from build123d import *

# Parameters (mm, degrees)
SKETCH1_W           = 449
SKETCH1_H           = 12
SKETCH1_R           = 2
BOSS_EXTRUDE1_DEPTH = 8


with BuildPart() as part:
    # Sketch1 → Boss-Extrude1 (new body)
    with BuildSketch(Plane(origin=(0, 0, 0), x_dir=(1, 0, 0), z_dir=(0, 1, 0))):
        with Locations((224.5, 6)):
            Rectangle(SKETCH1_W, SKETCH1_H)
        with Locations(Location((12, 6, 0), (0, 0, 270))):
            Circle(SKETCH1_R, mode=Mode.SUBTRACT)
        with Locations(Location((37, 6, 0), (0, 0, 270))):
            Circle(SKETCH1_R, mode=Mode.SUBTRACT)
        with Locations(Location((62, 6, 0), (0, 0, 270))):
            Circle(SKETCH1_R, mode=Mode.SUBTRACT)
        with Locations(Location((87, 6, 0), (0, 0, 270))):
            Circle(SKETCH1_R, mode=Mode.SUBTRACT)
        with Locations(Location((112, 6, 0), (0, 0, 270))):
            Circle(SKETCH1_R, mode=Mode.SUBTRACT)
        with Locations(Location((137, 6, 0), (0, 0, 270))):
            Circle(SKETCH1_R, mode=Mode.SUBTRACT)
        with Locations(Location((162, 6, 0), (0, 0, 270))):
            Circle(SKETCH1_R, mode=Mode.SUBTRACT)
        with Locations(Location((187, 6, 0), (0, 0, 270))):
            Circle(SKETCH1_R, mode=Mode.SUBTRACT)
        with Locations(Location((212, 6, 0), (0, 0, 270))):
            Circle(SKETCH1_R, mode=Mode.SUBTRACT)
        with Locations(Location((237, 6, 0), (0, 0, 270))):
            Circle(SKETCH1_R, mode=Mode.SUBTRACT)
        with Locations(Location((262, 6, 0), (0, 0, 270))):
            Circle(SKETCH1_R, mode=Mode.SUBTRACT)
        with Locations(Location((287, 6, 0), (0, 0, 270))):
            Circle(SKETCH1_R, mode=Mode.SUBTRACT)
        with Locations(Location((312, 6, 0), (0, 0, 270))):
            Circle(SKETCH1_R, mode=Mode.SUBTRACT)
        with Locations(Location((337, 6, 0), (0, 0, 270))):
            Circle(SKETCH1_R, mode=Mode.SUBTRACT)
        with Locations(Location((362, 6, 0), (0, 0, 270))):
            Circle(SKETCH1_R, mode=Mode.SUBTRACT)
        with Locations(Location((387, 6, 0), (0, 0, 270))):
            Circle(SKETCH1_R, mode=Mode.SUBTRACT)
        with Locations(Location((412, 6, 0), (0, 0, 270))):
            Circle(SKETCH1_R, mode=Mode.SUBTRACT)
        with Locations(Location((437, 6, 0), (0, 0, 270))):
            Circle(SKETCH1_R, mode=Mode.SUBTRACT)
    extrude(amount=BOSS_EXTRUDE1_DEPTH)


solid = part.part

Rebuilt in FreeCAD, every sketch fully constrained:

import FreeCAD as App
import Part
import Sketcher


def add_polygon(sketch, points):
    """Adds a closed chain of lines whose ends are joined by coincident constraints."""
    first, n = sketch.GeometryCount, len(points)
    for a, b in zip(points, points[1:] + points[:1]):
        sketch.addGeometry(Part.LineSegment(App.Vector(*a, 0), App.Vector(*b, 0)), False)
    for i in range(n):
        sketch.addConstraint(Sketcher.Constraint("Coincident", first + i, 2, first + (i + 1) % n, 1))

doc = App.newDocument("Part")
params = doc.addObject("Spreadsheet::Sheet", "Params")
for row, (alias, value) in enumerate([
    ("sketch1_diameter", "4 mm"),
    ("sketch1_width", "449 mm"),
    ("sketch1_height", "12 mm"),
    ("pad1_length", "8 mm"),
], start=1):
    params.set(f"A{row}", alias)
    params.set(f"B{row}", "=" + value)
    params.setAlias(f"B{row}", alias)

body = doc.addObject("PartDesign::Body", "Body")

# Sketch on XZ plane
sketch1 = body.newObject("Sketcher::SketchObject", "Sketch")
sketch1.AttachmentSupport = (doc.getObject("XZ_Plane"), [""])
sketch1.MapMode = "FlatFace"
add_polygon(sketch1, [(0, -12), (0, 0), (449, 0), (449, -12)])  # lines 0-3
sketch1.addGeometry(Part.Circle(App.Vector(12, -6, 0), App.Vector(0, 0, 1), 2), False)  # 4
sketch1.addGeometry(Part.Circle(App.Vector(37, -6, 0), App.Vector(0, 0, 1), 2), False)  # 5
sketch1.addGeometry(Part.Circle(App.Vector(62, -6, 0), App.Vector(0, 0, 1), 2), False)  # 6
sketch1.addGeometry(Part.Circle(App.Vector(87, -6, 0), App.Vector(0, 0, 1), 2), False)  # 7
sketch1.addGeometry(Part.Circle(App.Vector(112, -6, 0), App.Vector(0, 0, 1), 2), False)  # 8
sketch1.addGeometry(Part.Circle(App.Vector(137, -6, 0), App.Vector(0, 0, 1), 2), False)  # 9
sketch1.addGeometry(Part.Circle(App.Vector(162, -6, 0), App.Vector(0, 0, 1), 2), False)  # 10
sketch1.addGeometry(Part.Circle(App.Vector(187, -6, 0), App.Vector(0, 0, 1), 2), False)  # 11
sketch1.addGeometry(Part.Circle(App.Vector(212, -6, 0), App.Vector(0, 0, 1), 2), False)  # 12
sketch1.addGeometry(Part.Circle(App.Vector(237, -6, 0), App.Vector(0, 0, 1), 2), False)  # 13
sketch1.addGeometry(Part.Circle(App.Vector(262, -6, 0), App.Vector(0, 0, 1), 2), False)  # 14
sketch1.addGeometry(Part.Circle(App.Vector(287, -6, 0), App.Vector(0, 0, 1), 2), False)  # 15
sketch1.addGeometry(Part.Circle(App.Vector(312, -6, 0), App.Vector(0, 0, 1), 2), False)  # 16
sketch1.addGeometry(Part.Circle(App.Vector(337, -6, 0), App.Vector(0, 0, 1), 2), False)  # 17
sketch1.addGeometry(Part.Circle(App.Vector(362, -6, 0), App.Vector(0, 0, 1), 2), False)  # 18
sketch1.addGeometry(Part.Circle(App.Vector(387, -6, 0), App.Vector(0, 0, 1), 2), False)  # 19
sketch1.addGeometry(Part.Circle(App.Vector(412, -6, 0), App.Vector(0, 0, 1), 2), False)  # 20
sketch1.addGeometry(Part.Circle(App.Vector(437, -6, 0), App.Vector(0, 0, 1), 2), False)  # 21
sketch1.addConstraint(Sketcher.Constraint("Vertical", 0))
sketch1.addConstraint(Sketcher.Constraint("Horizontal", 1))
sketch1.addConstraint(Sketcher.Constraint("Vertical", 2))
sketch1.addConstraint(Sketcher.Constraint("Horizontal", 3))
sketch1.addConstraint(Sketcher.Constraint("Coincident", 0, 2, -1, 1))
sketch1.addConstraint(Sketcher.Constraint("Equal", 4, 5))
sketch1.addConstraint(Sketcher.Constraint("Equal", 5, 6))
sketch1.addConstraint(Sketcher.Constraint("Equal", 6, 7))
sketch1.addConstraint(Sketcher.Constraint("Equal", 7, 8))
sketch1.addConstraint(Sketcher.Constraint("Equal", 8, 9))
sketch1.addConstraint(Sketcher.Constraint("Equal", 9, 10))
sketch1.addConstraint(Sketcher.Constraint("Equal", 10, 11))
sketch1.addConstraint(Sketcher.Constraint("Equal", 11, 12))
sketch1.addConstraint(Sketcher.Constraint("Equal", 12, 13))
sketch1.addConstraint(Sketcher.Constraint("Equal", 13, 14))
sketch1.addConstraint(Sketcher.Constraint("Equal", 14, 15))
sketch1.addConstraint(Sketcher.Constraint("Equal", 15, 16))
sketch1.addConstraint(Sketcher.Constraint("Equal", 16, 17))
sketch1.addConstraint(Sketcher.Constraint("Equal", 17, 18))
sketch1.addConstraint(Sketcher.Constraint("Equal", 18, 19))
sketch1.addConstraint(Sketcher.Constraint("Equal", 19, 20))
sketch1.addConstraint(Sketcher.Constraint("Equal", 20, 21))
sketch1.addConstraint(Sketcher.Constraint("Horizontal", 4, 3, 5, 3))
sketch1.addConstraint(Sketcher.Constraint("Horizontal", 5, 3, 6, 3))
sketch1.addConstraint(Sketcher.Constraint("Horizontal", 6, 3, 7, 3))
sketch1.addConstraint(Sketcher.Constraint("Horizontal", 7, 3, 8, 3))
sketch1.addConstraint(Sketcher.Constraint("Horizontal", 8, 3, 9, 3))
sketch1.addConstraint(Sketcher.Constraint("Horizontal", 9, 3, 10, 3))
sketch1.addConstraint(Sketcher.Constraint("Horizontal", 10, 3, 11, 3))
sketch1.addConstraint(Sketcher.Constraint("Horizontal", 11, 3, 12, 3))
sketch1.addConstraint(Sketcher.Constraint("Horizontal", 12, 3, 13, 3))
sketch1.addConstraint(Sketcher.Constraint("Horizontal", 13, 3, 14, 3))
sketch1.addConstraint(Sketcher.Constraint("Horizontal", 14, 3, 15, 3))
sketch1.addConstraint(Sketcher.Constraint("Horizontal", 15, 3, 16, 3))
sketch1.addConstraint(Sketcher.Constraint("Horizontal", 16, 3, 17, 3))
sketch1.addConstraint(Sketcher.Constraint("Horizontal", 17, 3, 18, 3))
sketch1.addConstraint(Sketcher.Constraint("Horizontal", 18, 3, 19, 3))
sketch1.addConstraint(Sketcher.Constraint("Horizontal", 19, 3, 20, 3))
sketch1.addConstraint(Sketcher.Constraint("Horizontal", 20, 3, 21, 3))
sketch1.addConstraint(Sketcher.Constraint("Diameter", 4, 4.0))
sketch1.addConstraint(Sketcher.Constraint("DistanceX", 1, 1, 1, 2, 449.0))
sketch1.addConstraint(Sketcher.Constraint("DistanceY", 0, 1, 0, 2, 12.0))
sketch1.addConstraint(Sketcher.Constraint("DistanceX", -1, 1, 4, 3, 12.0))
sketch1.addConstraint(Sketcher.Constraint("DistanceY", 4, 3, -1, 1, 6.0))
sketch1.addConstraint(Sketcher.Constraint("DistanceX", -1, 1, 5, 3, 37.0))
sketch1.addConstraint(Sketcher.Constraint("DistanceX", -1, 1, 6, 3, 62.0))
sketch1.addConstraint(Sketcher.Constraint("DistanceX", -1, 1, 7, 3, 87.0))
sketch1.addConstraint(Sketcher.Constraint("DistanceX", -1, 1, 8, 3, 112.0))
sketch1.addConstraint(Sketcher.Constraint("DistanceX", -1, 1, 9, 3, 137.0))
sketch1.addConstraint(Sketcher.Constraint("DistanceX", -1, 1, 10, 3, 162.0))
sketch1.addConstraint(Sketcher.Constraint("DistanceX", -1, 1, 11, 3, 187.0))
sketch1.addConstraint(Sketcher.Constraint("DistanceX", -1, 1, 12, 3, 212.0))
sketch1.addConstraint(Sketcher.Constraint("DistanceX", -1, 1, 13, 3, 237.0))
sketch1.addConstraint(Sketcher.Constraint("DistanceX", -1, 1, 14, 3, 262.0))
sketch1.addConstraint(Sketcher.Constraint("DistanceX", -1, 1, 15, 3, 287.0))
sketch1.addConstraint(Sketcher.Constraint("DistanceX", -1, 1, 16, 3, 312.0))
sketch1.addConstraint(Sketcher.Constraint("DistanceX", -1, 1, 17, 3, 337.0))
sketch1.addConstraint(Sketcher.Constraint("DistanceX", -1, 1, 18, 3, 362.0))
sketch1.addConstraint(Sketcher.Constraint("DistanceX", -1, 1, 19, 3, 387.0))
sketch1.addConstraint(Sketcher.Constraint("DistanceX", -1, 1, 20, 3, 412.0))
sketch1.addConstraint(Sketcher.Constraint("DistanceX", -1, 1, 21, 3, 437.0))
sketch1.setExpression("Constraints[43]", "Params.sketch1_diameter")
sketch1.setExpression("Constraints[44]", "Params.sketch1_width")
sketch1.setExpression("Constraints[45]", "Params.sketch1_height")
pad1 = body.newObject("PartDesign::Pad", "Pad")
pad1.Profile = sketch1
pad1.setExpression("Length", "Params.pad1_length")
pad1.Reversed = True

doc.recompute()
